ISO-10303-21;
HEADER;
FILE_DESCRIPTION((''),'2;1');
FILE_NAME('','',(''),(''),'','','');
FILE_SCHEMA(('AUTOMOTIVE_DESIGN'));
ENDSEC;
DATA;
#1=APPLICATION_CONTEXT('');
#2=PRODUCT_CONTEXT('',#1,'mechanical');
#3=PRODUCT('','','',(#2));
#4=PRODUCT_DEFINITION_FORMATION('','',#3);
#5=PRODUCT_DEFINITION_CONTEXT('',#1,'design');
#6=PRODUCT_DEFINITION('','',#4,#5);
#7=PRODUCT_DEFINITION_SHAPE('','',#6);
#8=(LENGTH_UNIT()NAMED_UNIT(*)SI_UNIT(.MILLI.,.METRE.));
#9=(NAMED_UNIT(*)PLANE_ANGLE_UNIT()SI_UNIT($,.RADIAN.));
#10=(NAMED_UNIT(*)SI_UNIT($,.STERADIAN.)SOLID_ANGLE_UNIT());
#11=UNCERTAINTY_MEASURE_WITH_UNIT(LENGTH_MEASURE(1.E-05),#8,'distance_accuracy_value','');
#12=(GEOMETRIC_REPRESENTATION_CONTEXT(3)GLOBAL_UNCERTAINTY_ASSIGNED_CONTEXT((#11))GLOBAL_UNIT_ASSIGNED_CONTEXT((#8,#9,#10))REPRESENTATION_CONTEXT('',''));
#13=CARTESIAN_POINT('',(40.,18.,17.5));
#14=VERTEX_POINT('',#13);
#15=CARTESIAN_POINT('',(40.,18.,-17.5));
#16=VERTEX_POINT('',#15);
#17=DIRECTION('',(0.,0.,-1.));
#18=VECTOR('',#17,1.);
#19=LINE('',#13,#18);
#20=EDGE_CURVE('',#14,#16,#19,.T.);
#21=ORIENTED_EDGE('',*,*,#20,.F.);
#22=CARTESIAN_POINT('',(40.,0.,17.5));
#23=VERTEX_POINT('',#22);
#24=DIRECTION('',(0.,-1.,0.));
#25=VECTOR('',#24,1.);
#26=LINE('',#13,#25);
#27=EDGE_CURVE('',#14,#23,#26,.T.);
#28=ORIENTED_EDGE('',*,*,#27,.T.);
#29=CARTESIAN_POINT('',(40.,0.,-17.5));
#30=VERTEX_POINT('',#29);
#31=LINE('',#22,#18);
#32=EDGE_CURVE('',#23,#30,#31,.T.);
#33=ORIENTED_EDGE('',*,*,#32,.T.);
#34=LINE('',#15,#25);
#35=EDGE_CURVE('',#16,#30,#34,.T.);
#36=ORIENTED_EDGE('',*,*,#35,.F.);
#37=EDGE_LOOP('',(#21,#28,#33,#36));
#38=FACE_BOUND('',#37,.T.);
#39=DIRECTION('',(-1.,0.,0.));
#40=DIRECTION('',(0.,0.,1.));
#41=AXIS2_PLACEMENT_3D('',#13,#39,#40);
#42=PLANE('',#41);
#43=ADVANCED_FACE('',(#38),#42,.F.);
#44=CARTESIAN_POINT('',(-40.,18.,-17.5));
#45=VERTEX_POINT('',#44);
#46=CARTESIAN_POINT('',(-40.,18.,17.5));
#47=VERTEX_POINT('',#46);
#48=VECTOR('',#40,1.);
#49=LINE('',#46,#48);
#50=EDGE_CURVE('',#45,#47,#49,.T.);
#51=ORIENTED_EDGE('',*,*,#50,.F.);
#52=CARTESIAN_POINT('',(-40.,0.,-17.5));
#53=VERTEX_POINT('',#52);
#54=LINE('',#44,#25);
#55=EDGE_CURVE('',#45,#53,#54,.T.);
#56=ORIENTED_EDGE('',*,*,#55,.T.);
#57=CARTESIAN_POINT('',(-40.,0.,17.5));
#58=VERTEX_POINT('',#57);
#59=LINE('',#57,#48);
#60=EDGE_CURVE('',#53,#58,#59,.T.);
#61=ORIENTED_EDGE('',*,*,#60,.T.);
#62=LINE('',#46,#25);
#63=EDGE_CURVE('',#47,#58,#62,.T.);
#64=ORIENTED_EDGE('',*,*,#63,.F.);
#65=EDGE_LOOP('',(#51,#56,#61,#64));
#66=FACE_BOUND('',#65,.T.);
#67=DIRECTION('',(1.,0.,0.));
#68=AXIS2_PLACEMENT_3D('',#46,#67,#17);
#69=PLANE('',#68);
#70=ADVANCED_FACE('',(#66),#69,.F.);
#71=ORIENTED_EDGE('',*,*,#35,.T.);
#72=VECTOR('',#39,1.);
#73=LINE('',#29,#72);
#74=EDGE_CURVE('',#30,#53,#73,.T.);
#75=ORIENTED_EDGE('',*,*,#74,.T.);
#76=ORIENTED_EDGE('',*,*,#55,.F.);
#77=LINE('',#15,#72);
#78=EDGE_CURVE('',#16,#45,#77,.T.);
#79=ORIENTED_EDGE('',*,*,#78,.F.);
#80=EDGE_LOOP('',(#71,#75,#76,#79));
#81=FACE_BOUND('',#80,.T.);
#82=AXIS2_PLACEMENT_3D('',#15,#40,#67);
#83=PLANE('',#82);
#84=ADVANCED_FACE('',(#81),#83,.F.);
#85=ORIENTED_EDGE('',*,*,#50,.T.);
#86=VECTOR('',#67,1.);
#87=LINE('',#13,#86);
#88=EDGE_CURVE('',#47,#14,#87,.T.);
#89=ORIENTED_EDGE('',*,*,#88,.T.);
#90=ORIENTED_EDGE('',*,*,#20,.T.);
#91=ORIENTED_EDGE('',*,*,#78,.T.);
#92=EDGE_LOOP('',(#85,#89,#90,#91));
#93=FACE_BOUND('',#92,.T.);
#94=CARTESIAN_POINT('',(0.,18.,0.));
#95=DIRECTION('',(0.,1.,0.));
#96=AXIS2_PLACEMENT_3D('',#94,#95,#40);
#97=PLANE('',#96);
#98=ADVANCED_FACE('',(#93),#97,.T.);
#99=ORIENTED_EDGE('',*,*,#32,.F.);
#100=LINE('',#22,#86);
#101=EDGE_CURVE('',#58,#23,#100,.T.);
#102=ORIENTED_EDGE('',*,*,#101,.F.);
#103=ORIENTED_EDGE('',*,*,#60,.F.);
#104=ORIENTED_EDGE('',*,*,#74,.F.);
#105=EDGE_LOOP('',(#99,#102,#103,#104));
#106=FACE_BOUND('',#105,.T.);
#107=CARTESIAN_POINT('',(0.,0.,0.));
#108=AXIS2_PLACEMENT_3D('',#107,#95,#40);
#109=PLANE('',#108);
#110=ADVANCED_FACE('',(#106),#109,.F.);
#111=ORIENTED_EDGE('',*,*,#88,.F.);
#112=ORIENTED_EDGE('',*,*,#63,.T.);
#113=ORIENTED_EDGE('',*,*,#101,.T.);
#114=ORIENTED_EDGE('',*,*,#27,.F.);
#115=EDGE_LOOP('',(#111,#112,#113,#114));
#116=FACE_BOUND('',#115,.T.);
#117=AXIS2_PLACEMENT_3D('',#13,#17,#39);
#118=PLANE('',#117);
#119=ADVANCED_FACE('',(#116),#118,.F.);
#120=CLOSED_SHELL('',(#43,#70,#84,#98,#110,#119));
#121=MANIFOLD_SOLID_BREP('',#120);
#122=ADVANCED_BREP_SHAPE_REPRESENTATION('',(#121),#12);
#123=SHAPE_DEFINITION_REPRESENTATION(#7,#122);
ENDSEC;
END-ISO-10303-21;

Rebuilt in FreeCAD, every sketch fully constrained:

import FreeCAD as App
import Part
import Sketcher
from FreeCAD import Vector
Q = App.Units.Quantity

doc = App.newDocument("Part")
body = doc.addObject("PartDesign::Body", "Body")

# Sketch on XZ plane
sketch1 = body.newObject("Sketcher::SketchObject", "Sketch")
sketch1.AttachmentSupport = (doc.getObject("XZ_Plane"), [""])
sketch1.MapMode = "FlatFace"
sketch1.addGeometry([
    Part.LineSegment(Vector(-40, -18, 0), Vector(-40, 18, 0)),
    Part.LineSegment(Vector(-40, 18, 0), Vector(40, 18, 0)),
    Part.LineSegment(Vector(40, 18, 0), Vector(40, -18, 0)),
    Part.LineSegment(Vector(40, -18, 0), Vector(-40, -18, 0)),
], False)
sketch1.addConstraint([
    Sketcher.Constraint("Coincident", 0, 2, 1, 1),
    Sketcher.Constraint("Coincident", 1, 2, 2, 1),
    Sketcher.Constraint("Coincident", 2, 2, 3, 1),
    Sketcher.Constraint("Coincident", 3, 2, 0, 1),
    Sketcher.Constraint("Vertical", 0),
    Sketcher.Constraint("Horizontal", 1),
    Sketcher.Constraint("Vertical", 2),
    Sketcher.Constraint("Horizontal", 3),
    Sketcher.Constraint("Symmetric", 0, 2, 2, 2, -1, 1),
    Sketcher.Constraint("DistanceX", 1, 1, 1, 2, Q("80 mm")),
    Sketcher.Constraint("DistanceY", 0, 1, 0, 2, Q("35 mm")),
])
pad1 = body.newObject("PartDesign::Pad", "Pad")
pad1.Profile = sketch1
pad1.Length = 18
pad1.Reversed = True

doc.recompute()
